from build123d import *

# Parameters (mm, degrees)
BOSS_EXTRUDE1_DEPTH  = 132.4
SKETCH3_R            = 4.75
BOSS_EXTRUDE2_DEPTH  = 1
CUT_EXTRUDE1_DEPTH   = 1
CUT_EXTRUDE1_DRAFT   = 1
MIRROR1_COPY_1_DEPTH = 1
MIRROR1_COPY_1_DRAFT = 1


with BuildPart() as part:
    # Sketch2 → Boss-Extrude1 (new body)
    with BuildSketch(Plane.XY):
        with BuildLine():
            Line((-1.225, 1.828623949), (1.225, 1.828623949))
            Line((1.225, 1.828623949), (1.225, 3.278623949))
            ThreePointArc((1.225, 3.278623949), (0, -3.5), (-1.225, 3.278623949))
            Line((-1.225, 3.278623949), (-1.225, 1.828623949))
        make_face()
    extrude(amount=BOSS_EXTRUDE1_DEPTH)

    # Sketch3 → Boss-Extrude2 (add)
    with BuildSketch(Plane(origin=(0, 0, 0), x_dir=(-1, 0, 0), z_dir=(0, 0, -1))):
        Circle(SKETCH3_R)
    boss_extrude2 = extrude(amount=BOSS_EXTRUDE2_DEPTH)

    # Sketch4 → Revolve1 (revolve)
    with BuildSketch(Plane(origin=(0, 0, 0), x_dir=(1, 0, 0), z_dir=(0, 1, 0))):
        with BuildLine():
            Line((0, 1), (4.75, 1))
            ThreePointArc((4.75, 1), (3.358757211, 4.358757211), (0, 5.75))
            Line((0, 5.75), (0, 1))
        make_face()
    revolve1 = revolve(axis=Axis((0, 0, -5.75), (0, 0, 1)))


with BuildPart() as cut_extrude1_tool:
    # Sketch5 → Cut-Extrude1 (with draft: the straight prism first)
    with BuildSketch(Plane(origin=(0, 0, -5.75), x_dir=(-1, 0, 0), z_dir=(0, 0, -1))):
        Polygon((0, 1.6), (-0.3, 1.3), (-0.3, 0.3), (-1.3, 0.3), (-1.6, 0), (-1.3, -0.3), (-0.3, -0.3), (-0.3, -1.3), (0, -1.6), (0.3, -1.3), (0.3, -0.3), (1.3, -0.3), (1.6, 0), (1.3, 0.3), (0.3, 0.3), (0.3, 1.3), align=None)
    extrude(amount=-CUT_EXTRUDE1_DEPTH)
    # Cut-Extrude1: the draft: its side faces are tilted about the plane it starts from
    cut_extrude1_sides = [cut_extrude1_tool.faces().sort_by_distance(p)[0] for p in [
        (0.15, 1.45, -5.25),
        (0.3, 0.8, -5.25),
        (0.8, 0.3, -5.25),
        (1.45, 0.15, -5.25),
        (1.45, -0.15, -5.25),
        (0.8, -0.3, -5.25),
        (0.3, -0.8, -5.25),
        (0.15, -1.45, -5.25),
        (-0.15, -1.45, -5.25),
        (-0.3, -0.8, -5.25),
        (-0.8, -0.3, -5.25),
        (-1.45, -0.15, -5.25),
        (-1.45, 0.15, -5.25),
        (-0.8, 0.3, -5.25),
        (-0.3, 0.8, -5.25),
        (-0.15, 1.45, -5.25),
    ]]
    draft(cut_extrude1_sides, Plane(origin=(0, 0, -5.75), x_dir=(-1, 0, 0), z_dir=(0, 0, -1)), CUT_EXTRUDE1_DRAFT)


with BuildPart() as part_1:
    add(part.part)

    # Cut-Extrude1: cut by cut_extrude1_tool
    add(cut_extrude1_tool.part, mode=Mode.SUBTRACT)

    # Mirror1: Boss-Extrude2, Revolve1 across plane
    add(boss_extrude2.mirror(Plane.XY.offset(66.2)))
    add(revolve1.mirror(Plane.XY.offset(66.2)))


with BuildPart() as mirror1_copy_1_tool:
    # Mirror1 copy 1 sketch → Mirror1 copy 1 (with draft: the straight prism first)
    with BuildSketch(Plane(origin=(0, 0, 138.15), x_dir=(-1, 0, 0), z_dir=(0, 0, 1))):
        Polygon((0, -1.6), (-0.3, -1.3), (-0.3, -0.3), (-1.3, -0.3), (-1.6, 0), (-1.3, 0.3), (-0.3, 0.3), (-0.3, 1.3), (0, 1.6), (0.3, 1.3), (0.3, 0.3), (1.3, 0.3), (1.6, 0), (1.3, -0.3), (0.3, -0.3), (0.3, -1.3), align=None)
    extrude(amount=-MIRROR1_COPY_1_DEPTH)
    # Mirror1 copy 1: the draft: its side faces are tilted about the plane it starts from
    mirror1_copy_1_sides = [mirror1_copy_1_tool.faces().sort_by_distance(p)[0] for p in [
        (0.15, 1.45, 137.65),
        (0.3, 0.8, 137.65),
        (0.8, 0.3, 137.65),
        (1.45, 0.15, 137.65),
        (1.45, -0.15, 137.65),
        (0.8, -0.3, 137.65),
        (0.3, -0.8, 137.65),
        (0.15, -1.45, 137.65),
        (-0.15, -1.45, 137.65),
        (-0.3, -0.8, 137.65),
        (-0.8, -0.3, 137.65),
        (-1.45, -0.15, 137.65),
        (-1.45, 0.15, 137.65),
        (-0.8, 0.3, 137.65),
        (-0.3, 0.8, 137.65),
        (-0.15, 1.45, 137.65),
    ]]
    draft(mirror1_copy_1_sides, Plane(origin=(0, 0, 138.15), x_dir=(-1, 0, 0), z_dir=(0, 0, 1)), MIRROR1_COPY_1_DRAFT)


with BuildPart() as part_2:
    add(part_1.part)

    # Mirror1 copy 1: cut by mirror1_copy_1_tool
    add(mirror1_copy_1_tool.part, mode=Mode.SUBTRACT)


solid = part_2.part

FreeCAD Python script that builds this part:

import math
import FreeCAD as App
import Part
import Sketcher
from FreeCAD import Vector


def faces_at(feature, points):
    """Names of the faces that lie closest to the given points."""
    faces = feature.Shape.Faces
    near = lambda p: min(range(len(faces)), key=lambda i: faces[i].distToShape(Part.Vertex(*p))[0])
    return sorted({f"Face{near(p) + 1}" for p in points})

doc = App.newDocument("Part")
body = doc.addObject("PartDesign::Body", "Body")

sketch1 = doc.addObject("Sketcher::SketchObject", "Sketch")
body.addObject(sketch1)
sketch1.AttachmentSupport = (doc.XY_Plane, [""])
sketch1.MapMode = "FlatFace"
sketch1.addGeometry([
    Part.LineSegment(Vector(1.2, 1.8, 0), Vector(-1.2, 1.8, 0)),
    Part.LineSegment(Vector(-1.2, 1.8, 0), Vector(-1.2, 3.3, 0)),
    Part.ArcOfCircle(Part.Circle(Vector(0, 0, 0), Vector(0, 0, 1), 3.5), math.radians(110), math.radians(430)),
    Part.LineSegment(Vector(1.2, 3.3, 0), Vector(1.2, 1.8, 0)),
], False)
sketch1.addConstraint([
    Sketcher.Constraint("Coincident", 0, 2, 1, 1),
    Sketcher.Constraint("Coincident", 1, 2, 2, 1),
    Sketcher.Constraint("Coincident", 2, 2, 3, 1),
    Sketcher.Constraint("Coincident", 3, 2, 0, 1),
    Sketcher.Constraint("Horizontal", 0),
    Sketcher.Constraint("Vertical", 1),
    Sketcher.Constraint("Vertical", 3),
    Sketcher.Constraint("Coincident", 2, 3, -1, 1),
    Sketcher.Constraint("Horizontal", 1, 2, 2, 2),
    Sketcher.Constraint("Radius", 2, 3.5),
    Sketcher.Constraint("DistanceX", 0, 2, 0, 1, 2.45),
    Sketcher.Constraint("DistanceY", 1, 1, 1, 2, 1.45),
])
pad1 = doc.addObject("PartDesign::Pad", "Pad")
body.addObject(pad1)
pad1.Profile = sketch1
pad1.Length = 132.4

sketch2 = doc.addObject("Sketcher::SketchObject", "Sketch001")
body.addObject(sketch2)
sketch2.AttachmentSupport = (doc.XY_Plane, [""])
sketch2.MapMode = "FlatFace"
sketch2.addGeometry(Part.Circle(Vector(0, 0, 0), Vector(0, 0, 1), 4.8), False)
sketch2.addConstraint([
    Sketcher.Constraint("Coincident", 0, 3, -1, 1),
    Sketcher.Constraint("Diameter", 0, 9.5),
])
pad2 = doc.addObject("PartDesign::Pad", "Pad001")
body.addObject(pad2)
pad2.Profile = sketch2
pad2.Length = 1
pad2.Reversed = True

sketch3 = doc.addObject("Sketcher::SketchObject", "Sketch002")
body.addObject(sketch3)
sketch3.AttachmentSupport = (doc.XZ_Plane, [""])
sketch3.MapMode = "FlatFace"
sketch3.addGeometry([
    Part.LineSegment(Vector(0, -1, 0), Vector(4.8, -1, 0)),
    Part.ArcOfCircle(Part.Circle(Vector(0, -1, 0), Vector(0, 0, 1), 4.7), math.radians(-90), math.radians(0)),
    Part.LineSegment(Vector(0, -5.8, 0), Vector(0, -1, 0)),
], False)
sketch3.addConstraint([
    Sketcher.Constraint("Coincident", 0, 2, 1, 2),
    Sketcher.Constraint("Coincident", 1, 1, 2, 1),
    Sketcher.Constraint("Coincident", 2, 2, 0, 1),
    Sketcher.Constraint("Horizontal", 0),
    Sketcher.Constraint("Vertical", 2),
    Sketcher.Constraint("Coincident", 2, 2, 1, 3),
    Sketcher.Constraint("PointOnObject", 1, 3, -2),
    Sketcher.Constraint("Radius", 1, 4.75),
    Sketcher.Constraint("DistanceY", 1, 3, -1, 1, 1.0),
])
revolution = doc.addObject("PartDesign::Revolution", "Revolution")
body.addObject(revolution)
revolution.Profile = sketch3
revolution.ReferenceAxis = (sketch3, ["V_Axis"])
revolution.Angle = 360
body2 = doc.addObject("PartDesign::Body", "Body001")

sketch4 = doc.addObject("Sketcher::SketchObject", "Sketch003")
body2.addObject(sketch4)
sketch4.AttachmentSupport = (doc.getObject("XY_Plane001"), [""])
sketch4.MapMode = "FlatFace"
sketch4.AttachmentOffset = App.Placement(Vector(0, 0, -5.75), App.Rotation())
sketch4.addGeometry([
    Part.LineSegment(Vector(0, 1.6, 0), Vector(0.3, 1.3, 0)),
    Part.LineSegment(Vector(0.3, 1.3, 0), Vector(0.3, 0.3, 0)),
    Part.LineSegment(Vector(0.3, 0.3, 0), Vector(1.3, 0.3, 0)),
    Part.LineSegment(Vector(1.3, 0.3, 0), Vector(1.6, 0, 0)),
    Part.LineSegment(Vector(1.6, 0, 0), Vector(1.3, -0.3, 0)),
    Part.LineSegment(Vector(1.3, -0.3, 0), Vector(0.3, -0.3, 0)),
    Part.LineSegment(Vector(0.3, -0.3, 0), Vector(0.3, -1.3, 0)),
    Part.LineSegment(Vector(0.3, -1.3, 0), Vector(0, -1.6, 0)),
    Part.LineSegment(Vector(0, -1.6, 0), Vector(-0.3, -1.3, 0)),
    Part.LineSegment(Vector(-0.3, -1.3, 0), Vector(-0.3, -0.3, 0)),
    Part.LineSegment(Vector(-0.3, -0.3, 0), Vector(-1.3, -0.3, 0)),
    Part.LineSegment(Vector(-1.3, -0.3, 0), Vector(-1.6, 0, 0)),
    Part.LineSegment(Vector(-1.6, 0, 0), Vector(-1.3, 0.3, 0)),
    Part.LineSegment(Vector(-1.3, 0.3, 0), Vector(-0.3, 0.3, 0)),
    Part.LineSegment(Vector(-0.3, 0.3, 0), Vector(-0.3, 1.3, 0)),
    Part.LineSegment(Vector(-0.3, 1.3, 0), Vector(0, 1.6, 0)),
], False)
sketch4.addConstraint([
    Sketcher.Constraint("Coincident", 0, 2, 1, 1),
    Sketcher.Constraint("Coincident", 1, 2, 2, 1),
    Sketcher.Constraint("Coincident", 2, 2, 3, 1),
    Sketcher.Constraint("Coincident", 3, 2, 4, 1),
    Sketcher.Constraint("Coincident", 4, 2, 5, 1),
    Sketcher.Constraint("Coincident", 5, 2, 6, 1),
    Sketcher.Constraint("Coincident", 6, 2, 7, 1),
    Sketcher.Constraint("Coincident", 7, 2, 8, 1),
    Sketcher.Constraint("Coincident", 8, 2, 9, 1),
    Sketcher.Constraint("Coincident", 9, 2, 10, 1),
    Sketcher.Constraint("Coincident", 10, 2, 11, 1),
    Sketcher.Constraint("Coincident", 11, 2, 12, 1),
    Sketcher.Constraint("Coincident", 12, 2, 13, 1),
    Sketcher.Constraint("Coincident", 13, 2, 14, 1),
    Sketcher.Constraint("Coincident", 14, 2, 15, 1),
    Sketcher.Constraint("Coincident", 15, 2, 0, 1),
    Sketcher.Constraint("Vertical", 1),
    Sketcher.Constraint("Horizontal", 2),
    Sketcher.Constraint("Horizontal", 5),
    Sketcher.Constraint("Vertical", 6),
    Sketcher.Constraint("Vertical", 9),
    Sketcher.Constraint("Horizontal", 10),
    Sketcher.Constraint("Horizontal", 13),
    Sketcher.Constraint("Vertical", 14),
    Sketcher.Constraint("Symmetric", 0, 2, 8, 2, -1, 1),
    Sketcher.Constraint("Symmetric", 2, 2, 10, 2, -1, 1),
    Sketcher.Constraint("Symmetric", 3, 2, 11, 2, -1, 1),
    Sketcher.Constraint("Symmetric", 4, 2, 12, 2, -1, 1),
    Sketcher.Constraint("Symmetric", 6, 2, 14, 2, -1, 1),
    Sketcher.Constraint("Symmetric", 7, 2, 15, 2, -1, 1),
    Sketcher.Constraint("Symmetric", 6, 2, 8, 2, -2),
    Sketcher.Constraint("Symmetric", 4, 2, 10, 2, -2),
    Sketcher.Constraint("PointOnObject", 3, 2, -1),
    Sketcher.Constraint("PointOnObject", 7, 2, -2),
    Sketcher.Constraint("Parallel", 0, 3),
    Sketcher.Constraint("Perpendicular", 3, 4),
    Sketcher.Constraint("Equal", 13, 1),
    Sketcher.Constraint("Equal", 0, 3),
    Sketcher.Constraint("DistanceX", 2, 1, 2, 2, 1.0),
    Sketcher.Constraint("DistanceX", -1, 1, 0, 2, 0.3),
])
pad3 = doc.addObject("PartDesign::Pad", "Pad002")
body2.addObject(pad3)
pad3.Profile = sketch4
pad3.Length = 1
doc.recompute()

datumplane = doc.addObject("PartDesign::Plane", "DatumPlane")
body2.addObject(datumplane)
datumplane.AttachmentSupport = (doc.getObject("XY_Plane001"), [""])
datumplane.MapMode = "FlatFace"
datumplane.AttachmentOffset = App.Placement(Vector(0, 0, -5.75), App.Rotation())
draft = doc.addObject("PartDesign::Draft", "Draft")
body2.addObject(draft)
draft.Base = (pad3, faces_at(pad3, [
    (0.15, 1.45, -5.25),
    (0.3, 0.8, -5.25),
    (0.8, 0.3, -5.25),
    (1.45, 0.15, -5.25),
    (1.45, -0.15, -5.25),
    (0.8, -0.3, -5.25),
    (0.3, -0.8, -5.25),
    (0.15, -1.45, -5.25),
    (-0.15, -1.45, -5.25),
    (-0.3, -0.8, -5.25),
    (-0.8, -0.3, -5.25),
    (-1.45, -0.15, -5.25),
    (-1.45, 0.15, -5.25),
    (-0.8, 0.3, -5.25),
    (-0.3, 0.8, -5.25),
    (-0.15, 1.45, -5.25),
]))
draft.NeutralPlane = (datumplane, [""])
draft.Angle = 1
draft.Reversed = True
doc.recompute()

boolean = doc.addObject("PartDesign::Boolean", "Boolean")
body.addObject(boolean)
boolean.Type = "Cut"
boolean.addObjects([body2])
doc.recompute()

datumplane2 = doc.addObject("PartDesign::Plane", "DatumPlane001")
body.addObject(datumplane2)
datumplane2.AttachmentSupport = (doc.XY_Plane, [""])
datumplane2.MapMode = "FlatFace"
datumplane2.AttachmentOffset = App.Placement(Vector(0, 0, 66.2), App.Rotation())
mirrored = doc.addObject("PartDesign::Mirrored", "Mirrored")
body.addObject(mirrored)
mirrored.Originals = [pad2, revolution]
mirrored.MirrorPlane = (datumplane2, [""])
body.Tip = mirrored
body3 = doc.addObject("PartDesign::Body", "Body002")

sketch5 = doc.addObject("Sketcher::SketchObject", "Sketch004")
body3.addObject(sketch5)
sketch5.AttachmentSupport = (doc.getObject("XY_Plane002"), [""])
sketch5.MapMode = "FlatFace"
sketch5.AttachmentOffset = App.Placement(Vector(0, 0, 138.15), App.Rotation())
sketch5.addGeometry([
    Part.LineSegment(Vector(0.3, 1.3, 0), Vector(0, 1.6, 0)),
    Part.LineSegment(Vector(0, 1.6, 0), Vector(-0.3, 1.3, 0)),
    Part.LineSegment(Vector(-0.3, 1.3, 0), Vector(-0.3, 0.3, 0)),
    Part.LineSegment(Vector(-0.3, 0.3, 0), Vector(-1.3, 0.3, 0)),
    Part.LineSegment(Vector(-1.3, 0.3, 0), Vector(-1.6, 0, 0)),
    Part.LineSegment(Vector(-1.6, 0, 0), Vector(-1.3, -0.3, 0)),
    Part.LineSegment(Vector(-1.3, -0.3, 0), Vector(-0.3, -0.3, 0)),
    Part.LineSegment(Vector(-0.3, -0.3, 0), Vector(-0.3, -1.3, 0)),
    Part.LineSegment(Vector(-0.3, -1.3, 0), Vector(0, -1.6, 0)),
    Part.LineSegment(Vector(0, -1.6, 0), Vector(0.3, -1.3, 0)),
    Part.LineSegment(Vector(0.3, -1.3, 0), Vector(0.3, -0.3, 0)),
    Part.LineSegment(Vector(0.3, -0.3, 0), Vector(1.3, -0.3, 0)),
    Part.LineSegment(Vector(1.3, -0.3, 0), Vector(1.6, 0, 0)),
    Part.LineSegment(Vector(1.6, 0, 0), Vector(1.3, 0.3, 0)),
    Part.LineSegment(Vector(1.3, 0.3, 0), Vector(0.3, 0.3, 0)),
    Part.LineSegment(Vector(0.3, 0.3, 0), Vector(0.3, 1.3, 0)),
], False)
sketch5.addConstraint([
    Sketcher.Constraint("Coincident", 0, 2, 1, 1),
    Sketcher.Constraint("Coincident", 1, 2, 2, 1),
    Sketcher.Constraint("Coincident", 2, 2, 3, 1),
    Sketcher.Constraint("Coincident", 3, 2, 4, 1),
    Sketcher.Constraint("Coincident", 4, 2, 5, 1),
    Sketcher.Constraint("Coincident", 5, 2, 6, 1),
    Sketcher.Constraint("Coincident", 6, 2, 7, 1),
    Sketcher.Constraint("Coincident", 7, 2, 8, 1),
    Sketcher.Constraint("Coincident", 8, 2, 9, 1),
    Sketcher.Constraint("Coincident", 9, 2, 10, 1),
    Sketcher.Constraint("Coincident", 10, 2, 11, 1),
    Sketcher.Constraint("Coincident", 11, 2, 12, 1),
    Sketcher.Constraint("Coincident", 12, 2, 13, 1),
    Sketcher.Constraint("Coincident", 13, 2, 14, 1),
    Sketcher.Constraint("Coincident", 14, 2, 15, 1),
    Sketcher.Constraint("Coincident", 15, 2, 0, 1),
    Sketcher.Constraint("Vertical", 2),
    Sketcher.Constraint("Horizontal", 3),
    Sketcher.Constraint("Horizontal", 6),
    Sketcher.Constraint("Vertical", 7),
    Sketcher.Constraint("Vertical", 10),
    Sketcher.Constraint("Horizontal", 11),
    Sketcher.Constraint("Horizontal", 14),
    Sketcher.Constraint("Vertical", 15),
    Sketcher.Constraint("Symmetric", 0, 2, 8, 2, -1, 1),
    Sketcher.Constraint("Symmetric", 1, 2, 9, 2, -1, 1),
    Sketcher.Constraint("Symmetric", 3, 2, 11, 2, -1, 1),
    Sketcher.Constraint("Symmetric", 4, 2, 12, 2, -1, 1),
    Sketcher.Constraint("Symmetric", 5, 2, 13, 2, -1, 1),
    Sketcher.Constraint("Symmetric", 7, 2, 15, 2, -1, 1),
    Sketcher.Constraint("Symmetric", 7, 2, 9, 2, -2),
    Sketcher.Constraint("Symmetric", 5, 2, 11, 2, -2),
    Sketcher.Constraint("PointOnObject", 0, 2, -2),
    Sketcher.Constraint("PointOnObject", 4, 2, -1),
    Sketcher.Constraint("Perpendicular", 0, 1),
    Sketcher.Constraint("Parallel", 1, 4),
    Sketcher.Constraint("Equal", 14, 2),
    Sketcher.Constraint("Equal", 1, 4),
    Sketcher.Constraint("DistanceX", 3, 2, 3, 1, 1.0),
    Sketcher.Constraint("DistanceY", -1, 1, 0, 2, 1.6),
])
pad4 = doc.addObject("PartDesign::Pad", "Pad003")
body3.addObject(pad4)
pad4.Profile = sketch5
pad4.Length = 1
pad4.Reversed = True
doc.recompute()

datumplane3 = doc.addObject("PartDesign::Plane", "DatumPlane002")
body3.addObject(datumplane3)
datumplane3.AttachmentSupport = (doc.getObject("XY_Plane002"), [""])
datumplane3.MapMode = "FlatFace"
datumplane3.AttachmentOffset = App.Placement(Vector(0, 0, 138.15), App.Rotation())
draft2 = doc.addObject("PartDesign::Draft", "Draft001")
body3.addObject(draft2)
draft2.Base = (pad4, faces_at(pad4, [
    (0.15, 1.45, 137.65),
    (0.3, 0.8, 137.65),
    (0.8, 0.3, 137.65),
    (1.45, 0.15, 137.65),
    (1.45, -0.15, 137.65),
    (0.8, -0.3, 137.65),
    (0.3, -0.8, 137.65),
    (0.15, -1.45, 137.65),
    (-0.15, -1.45, 137.65),
    (-0.3, -0.8, 137.65),
    (-0.8, -0.3, 137.65),
    (-1.45, -0.15, 137.65),
    (-1.45, 0.15, 137.65),
    (-0.8, 0.3, 137.65),
    (-0.3, 0.8, 137.65),
    (-0.15, 1.45, 137.65),
]))
draft2.NeutralPlane = (datumplane3, [""])
draft2.Angle = 1
draft2.Reversed = False
doc.recompute()

boolean2 = doc.addObject("PartDesign::Boolean", "Boolean001")
body.addObject(boolean2)
boolean2.Type = "Cut"
boolean2.addObjects([body3])

doc.recompute()
